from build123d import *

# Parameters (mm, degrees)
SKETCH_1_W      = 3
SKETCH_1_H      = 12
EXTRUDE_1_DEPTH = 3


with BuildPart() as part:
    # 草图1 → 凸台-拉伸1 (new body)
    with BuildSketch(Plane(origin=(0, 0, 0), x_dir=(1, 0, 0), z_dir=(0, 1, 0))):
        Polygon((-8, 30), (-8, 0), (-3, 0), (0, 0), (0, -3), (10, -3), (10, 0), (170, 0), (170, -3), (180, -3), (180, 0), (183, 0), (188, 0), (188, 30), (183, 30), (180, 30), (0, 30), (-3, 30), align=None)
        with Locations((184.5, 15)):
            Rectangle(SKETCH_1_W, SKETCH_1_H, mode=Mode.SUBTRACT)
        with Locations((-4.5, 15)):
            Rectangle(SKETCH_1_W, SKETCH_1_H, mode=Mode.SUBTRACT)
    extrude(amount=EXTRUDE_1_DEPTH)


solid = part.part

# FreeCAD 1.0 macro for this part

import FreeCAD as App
import Part
import Sketcher


def add_polygon(sketch, points):
    """Adds a closed chain of lines whose ends are joined by coincident constraints."""
    first, n = sketch.GeometryCount, len(points)
    for a, b in zip(points, points[1:] + points[:1]):
        sketch.addGeometry(Part.LineSegment(App.Vector(*a, 0), App.Vector(*b, 0)), False)
    for i in range(n):
        sketch.addConstraint(Sketcher.Constraint("Coincident", first + i, 2, first + (i + 1) % n, 1))

doc = App.newDocument("Part")
params = doc.addObject("Spreadsheet::Sheet", "Params")
for row, (alias, value) in enumerate([
    ("sketch1_width", "8 mm"),
    ("sketch1_width2", "10 mm"),
    ("sketch1_width3", "160 mm"),
    ("sketch1_width4", "3 mm"),
    ("sketch1_height", "30 mm"),
    ("pad1_length", "3 mm"),
], start=1):
    params.set(f"A{row}", alias)
    params.set(f"B{row}", "=" + value)
    params.setAlias(f"B{row}", alias)

body = doc.addObject("PartDesign::Body", "Body")

sketch1 = body.newObject("Sketcher::SketchObject", "Sketch")
sketch1.AttachmentSupport = (doc.getObject("XZ_Plane"), [""])
sketch1.MapMode = "FlatFace"
add_polygon(sketch1, [(-8, -30), (-8, 0), (0, 0), (0, 3), (10, 3), (10, 0), (170, 0), (170, 3), (180, 3), (180, 0), (188, 0), (188, -30)])
add_polygon(sketch1, [(-3, -9), (-6, -9), (-6, -21), (-3, -21)])
add_polygon(sketch1, [(186, -9), (183, -9), (183, -21), (186, -21)])
sketch1.addConstraint([
    Sketcher.Constraint("Vertical", 0),
    Sketcher.Constraint("Horizontal", 1),
    Sketcher.Constraint("Vertical", 2),
    Sketcher.Constraint("Horizontal", 3),
    Sketcher.Constraint("Vertical", 4),
    Sketcher.Constraint("Horizontal", 5),
    Sketcher.Constraint("Vertical", 6),
    Sketcher.Constraint("Horizontal", 7),
    Sketcher.Constraint("Vertical", 8),
    Sketcher.Constraint("Horizontal", 9),
    Sketcher.Constraint("Vertical", 10),
    Sketcher.Constraint("Horizontal", 11),
    Sketcher.Constraint("Horizontal", 12),
    Sketcher.Constraint("Vertical", 13),
    Sketcher.Constraint("Horizontal", 14),
    Sketcher.Constraint("Vertical", 15),
    Sketcher.Constraint("Horizontal", 16),
    Sketcher.Constraint("Vertical", 17),
    Sketcher.Constraint("Horizontal", 18),
    Sketcher.Constraint("Vertical", 19),
    Sketcher.Constraint("Coincident", 1, 2, -1, 1),
    Sketcher.Constraint("PointOnObject", 4, 2, -1),
    Sketcher.Constraint("PointOnObject", 8, 2, -1),
    Sketcher.Constraint("Horizontal", 3, 2, 6, 2),
    Sketcher.Constraint("Horizontal", 15, 2, 16, 2),
    Sketcher.Constraint("Horizontal", 14, 2, 17, 2),
    Sketcher.Constraint("Equal", 3, 7),
    Sketcher.Constraint("Equal", 1, 9),
    Sketcher.Constraint("Equal", 14, 16),
    Sketcher.Constraint("Equal", 18, 2),
    Sketcher.Constraint("DistanceX", 1, 1, 1, 2, 8.0),
    Sketcher.Constraint("DistanceX", 3, 1, 3, 2, 10.0),
    Sketcher.Constraint("DistanceX", 5, 1, 5, 2, 160.0),
    Sketcher.Constraint("DistanceX", 12, 2, 12, 1, 3.0),
    Sketcher.Constraint("DistanceY", 0, 1, 0, 2, 30.0),
    Sketcher.Constraint("DistanceY", 13, 2, 13, 1, 12.0),
    Sketcher.Constraint("DistanceX", 12, 2, -1, 1, 6.0),
    Sketcher.Constraint("DistanceY", 12, 2, -1, 1, 9.0),
    Sketcher.Constraint("DistanceX", -1, 1, 16, 2, 183.0),
])
sketch1.setExpression("Constraints[50]", "Params.sketch1_width")
sketch1.setExpression("Constraints[51]", "Params.sketch1_width2")
sketch1.setExpression("Constraints[52]", "Params.sketch1_width3")
sketch1.setExpression("Constraints[53]", "Params.sketch1_width4")
sketch1.setExpression("Constraints[54]", "Params.sketch1_height")
pad1 = body.newObject("PartDesign::Pad", "Pad")
pad1.Profile = sketch1
pad1.setExpression("Length", "Params.pad1_length")
pad1.Reversed = True

doc.recompute()
